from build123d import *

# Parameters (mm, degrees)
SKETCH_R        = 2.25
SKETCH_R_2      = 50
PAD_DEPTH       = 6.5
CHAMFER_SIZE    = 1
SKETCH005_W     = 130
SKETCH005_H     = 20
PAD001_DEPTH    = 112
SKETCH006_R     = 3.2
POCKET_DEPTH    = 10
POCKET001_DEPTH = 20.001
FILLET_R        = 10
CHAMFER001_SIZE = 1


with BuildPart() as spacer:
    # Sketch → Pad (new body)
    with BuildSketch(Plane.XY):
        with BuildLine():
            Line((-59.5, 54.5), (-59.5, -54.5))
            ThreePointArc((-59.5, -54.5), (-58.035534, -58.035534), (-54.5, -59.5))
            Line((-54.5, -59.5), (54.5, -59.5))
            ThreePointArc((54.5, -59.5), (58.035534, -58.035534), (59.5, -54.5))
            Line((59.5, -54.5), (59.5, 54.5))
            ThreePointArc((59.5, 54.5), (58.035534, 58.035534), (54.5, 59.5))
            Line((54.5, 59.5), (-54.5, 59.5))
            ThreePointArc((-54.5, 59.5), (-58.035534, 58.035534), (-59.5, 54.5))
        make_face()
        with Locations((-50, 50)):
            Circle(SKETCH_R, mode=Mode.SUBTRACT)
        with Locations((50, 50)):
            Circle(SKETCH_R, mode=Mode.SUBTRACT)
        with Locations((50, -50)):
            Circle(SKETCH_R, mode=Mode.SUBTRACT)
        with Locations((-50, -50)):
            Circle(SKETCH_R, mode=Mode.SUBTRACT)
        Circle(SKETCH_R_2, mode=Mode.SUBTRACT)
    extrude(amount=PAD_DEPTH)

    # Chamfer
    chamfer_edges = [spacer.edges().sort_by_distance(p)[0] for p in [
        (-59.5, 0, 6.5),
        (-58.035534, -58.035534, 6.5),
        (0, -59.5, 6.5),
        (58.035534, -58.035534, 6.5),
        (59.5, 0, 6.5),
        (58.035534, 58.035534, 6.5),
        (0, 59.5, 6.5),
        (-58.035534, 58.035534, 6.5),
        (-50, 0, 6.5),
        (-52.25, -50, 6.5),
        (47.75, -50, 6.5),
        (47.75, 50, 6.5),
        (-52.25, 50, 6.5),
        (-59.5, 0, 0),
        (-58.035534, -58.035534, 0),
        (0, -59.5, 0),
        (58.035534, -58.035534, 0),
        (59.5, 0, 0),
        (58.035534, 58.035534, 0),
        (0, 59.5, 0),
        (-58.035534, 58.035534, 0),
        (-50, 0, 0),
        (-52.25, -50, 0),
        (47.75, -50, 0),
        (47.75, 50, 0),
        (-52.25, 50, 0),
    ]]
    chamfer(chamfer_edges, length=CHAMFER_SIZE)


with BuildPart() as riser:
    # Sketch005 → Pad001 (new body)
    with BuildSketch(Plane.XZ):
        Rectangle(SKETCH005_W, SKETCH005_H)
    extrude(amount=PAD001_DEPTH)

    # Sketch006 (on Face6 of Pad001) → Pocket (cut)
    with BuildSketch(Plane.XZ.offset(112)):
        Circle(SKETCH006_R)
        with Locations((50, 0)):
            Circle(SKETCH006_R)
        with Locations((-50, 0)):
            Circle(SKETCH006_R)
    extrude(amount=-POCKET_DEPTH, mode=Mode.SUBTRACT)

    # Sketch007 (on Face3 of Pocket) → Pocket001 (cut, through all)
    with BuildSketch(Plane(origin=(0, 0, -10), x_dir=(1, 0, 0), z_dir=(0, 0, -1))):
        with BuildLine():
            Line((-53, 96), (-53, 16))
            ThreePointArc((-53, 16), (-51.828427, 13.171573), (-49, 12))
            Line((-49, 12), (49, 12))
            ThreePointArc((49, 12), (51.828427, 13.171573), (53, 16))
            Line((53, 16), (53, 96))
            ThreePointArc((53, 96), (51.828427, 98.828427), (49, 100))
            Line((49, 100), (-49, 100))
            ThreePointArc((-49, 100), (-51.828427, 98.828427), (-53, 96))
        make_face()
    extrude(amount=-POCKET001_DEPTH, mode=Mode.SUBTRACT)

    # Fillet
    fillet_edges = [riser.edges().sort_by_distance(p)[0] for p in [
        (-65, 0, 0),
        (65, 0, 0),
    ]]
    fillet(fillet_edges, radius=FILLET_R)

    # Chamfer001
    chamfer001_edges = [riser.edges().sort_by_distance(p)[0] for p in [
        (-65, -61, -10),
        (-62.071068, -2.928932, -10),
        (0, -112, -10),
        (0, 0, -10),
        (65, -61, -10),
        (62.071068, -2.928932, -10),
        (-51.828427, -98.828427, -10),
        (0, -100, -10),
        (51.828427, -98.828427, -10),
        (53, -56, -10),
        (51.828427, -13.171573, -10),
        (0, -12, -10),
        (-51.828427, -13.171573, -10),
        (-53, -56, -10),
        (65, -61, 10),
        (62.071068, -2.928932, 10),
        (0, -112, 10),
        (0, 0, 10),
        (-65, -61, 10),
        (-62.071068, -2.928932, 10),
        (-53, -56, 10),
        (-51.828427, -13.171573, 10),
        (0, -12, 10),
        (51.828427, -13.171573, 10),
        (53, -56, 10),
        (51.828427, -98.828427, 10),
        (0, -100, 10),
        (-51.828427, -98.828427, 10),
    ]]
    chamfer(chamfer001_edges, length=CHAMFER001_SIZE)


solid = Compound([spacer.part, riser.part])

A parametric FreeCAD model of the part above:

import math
import FreeCAD as App
import Part
import Sketcher
from FreeCAD import Vector


def edges_at(feature, points):
    """Names of the edges that pass closest to the given points."""
    edges = feature.Shape.Edges
    near = lambda p: min(range(len(edges)), key=lambda i: edges[i].distToShape(Part.Vertex(*p))[0])
    return sorted({f"Edge{near(p) + 1}" for p in points})


def add_polygon(sketch, points):
    """Adds a closed chain of lines whose ends are joined by coincident constraints."""
    first, n = sketch.GeometryCount, len(points)
    for a, b in zip(points, points[1:] + points[:1]):
        sketch.addGeometry(Part.LineSegment(App.Vector(*a, 0), App.Vector(*b, 0)), False)
    for i in range(n):
        sketch.addConstraint(Sketcher.Constraint("Coincident", first + i, 2, first + (i + 1) % n, 1))

doc = App.newDocument("Part")
body = doc.addObject("PartDesign::Body", "Body")

sketch1 = body.newObject("Sketcher::SketchObject", "Sketch")
sketch1.AttachmentSupport = (doc.getObject("XY_Plane"), [""])
sketch1.MapMode = "FlatFace"
sketch1.addGeometry([
    Part.LineSegment(Vector(-59.5, 54.5, 0), Vector(-59.5, -54.5, 0)),
    Part.ArcOfCircle(Part.Circle(Vector(-54.5, -54.5, 0), Vector(0, 0, 1), 5), math.radians(179.999996), math.radians(270.000004)),
    Part.LineSegment(Vector(-54.5, -59.5, 0), Vector(54.5, -59.5, 0)),
    Part.ArcOfCircle(Part.Circle(Vector(54.5, -54.5, 0), Vector(0, 0, 1), 5), math.radians(-90.000004), math.radians(0.000004)),
    Part.LineSegment(Vector(59.5, -54.5, 0), Vector(59.5, 54.5, 0)),
    Part.ArcOfCircle(Part.Circle(Vector(54.5, 54.5, 0), Vector(0, 0, 1), 5), math.radians(-0.000004), math.radians(90.000004)),
    Part.LineSegment(Vector(54.5, 59.5, 0), Vector(-54.5, 59.5, 0)),
    Part.ArcOfCircle(Part.Circle(Vector(-54.5, 54.5, 0), Vector(0, 0, 1), 5), math.radians(89.999996), math.radians(180.000004)),
    Part.Circle(Vector(-50, -50, 0), Vector(0, 0, 1), 2.25),
    Part.Circle(Vector(50, -50, 0), Vector(0, 0, 1), 2.25),
    Part.Circle(Vector(-50, 50, 0), Vector(0, 0, 1), 2.25),
    Part.Circle(Vector(0, 0, 0), Vector(0, 0, 1), 50),
    Part.Circle(Vector(50, 50, 0), Vector(0, 0, 1), 2.25),
], False)
sketch1.addConstraint([
    Sketcher.Constraint("Tangent", 0, 2, 1, 1),
    Sketcher.Constraint("Tangent", 1, 2, 2, 1),
    Sketcher.Constraint("Tangent", 2, 2, 3, 1),
    Sketcher.Constraint("Tangent", 3, 2, 4, 1),
    Sketcher.Constraint("Tangent", 4, 2, 5, 1),
    Sketcher.Constraint("Tangent", 5, 2, 6, 1),
    Sketcher.Constraint("Tangent", 6, 2, 7, 1),
    Sketcher.Constraint("Tangent", 7, 2, 0, 1),
    Sketcher.Constraint("Vertical", 0),
    Sketcher.Constraint("Horizontal", 2),
    Sketcher.Constraint("Vertical", 4),
    Sketcher.Constraint("Horizontal", 6),
    Sketcher.Constraint("Coincident", 11, 3, -1, 1),
    Sketcher.Constraint("Equal", 1, 3),
    Sketcher.Constraint("Equal", 3, 5),
    Sketcher.Constraint("Equal", 5, 7),
    Sketcher.Constraint("Equal", 8, 9),
    Sketcher.Constraint("Equal", 9, 10),
    Sketcher.Constraint("Equal", 10, 12),
    Sketcher.Constraint("Symmetric", 1, 3, 5, 3, -1, 1),
    Sketcher.Constraint("Symmetric", 9, 3, 10, 3, -1, 1),
    Sketcher.Constraint("Symmetric", 8, 3, 12, 3, -1, 1),
    Sketcher.Constraint("Symmetric", 8, 3, 9, 3, -2),
    Sketcher.Constraint("Equal", 6, 0),
    Sketcher.Constraint("Diameter", 11, 100.0),
    Sketcher.Constraint("Radius", 1, 5.0),
    Sketcher.Constraint("Diameter", 8, 4.5),
    Sketcher.Constraint("DistanceX", 2, 1, 2, 2, 109.0),
    Sketcher.Constraint("DistanceX", 8, 3, -1, 1, 50.0),
    Sketcher.Constraint("DistanceY", 8, 3, -1, 1, 50.0),
])
pad1 = body.newObject("PartDesign::Pad", "Pad")
pad1.Profile = sketch1
pad1.Length = 6.5
doc.recompute()

chamfer = body.newObject("PartDesign::Chamfer", "Chamfer")
chamfer.Base = (pad1, edges_at(pad1, [
    (-59.5, 0, 6.5),
    (-58.036, -58.036, 6.5),
    (0, -59.5, 6.5),
    (58.036, -58.036, 6.5),
    (59.5, 0, 6.5),
    (58.036, 58.036, 6.5),
    (0, 59.5, 6.5),
    (-58.036, 58.036, 6.5),
    (-50, 0, 6.5),
    (-52.25, -50, 6.5),
    (47.75, -50, 6.5),
    (47.75, 50, 6.5),
    (-52.25, 50, 6.5),
    (-59.5, 0, 0),
    (-58.036, -58.036, 0),
    (0, -59.5, 0),
    (58.036, -58.036, 0),
    (59.5, 0, 0),
    (58.036, 58.036, 0),
    (0, 59.5, 0),
    (-58.036, 58.036, 0),
    (-50, 0, 0),
    (-52.25, -50, 0),
    (47.75, -50, 0),
    (47.75, 50, 0),
    (-52.25, 50, 0),
]))
chamfer.Size = 1
body2 = doc.addObject("PartDesign::Body", "Body001")

sketch2 = body2.newObject("Sketcher::SketchObject", "Sketch001")
sketch2.AttachmentSupport = (doc.getObject("XZ_Plane001"), [""])
sketch2.MapMode = "FlatFace"
add_polygon(sketch2, [(-65, 10), (-65, -10), (65, -10), (65, 10)])
sketch2.addConstraint([
    Sketcher.Constraint("Vertical", 0),
    Sketcher.Constraint("Horizontal", 1),
    Sketcher.Constraint("Vertical", 2),
    Sketcher.Constraint("Horizontal", 3),
    Sketcher.Constraint("Symmetric", 0, 2, 2, 2, -1, 1),
    Sketcher.Constraint("DistanceX", 1, 1, 1, 2, 130.0),
    Sketcher.Constraint("DistanceY", 0, 2, 0, 1, 20.0),
])
pad2 = body2.newObject("PartDesign::Pad", "Pad001")
pad2.Profile = sketch2
pad2.Length = 112

sketch3 = body2.newObject("Sketcher::SketchObject", "Sketch002")
sketch3.AttachmentSupport = (doc.getObject("XZ_Plane001"), [""])
sketch3.MapMode = "FlatFace"
sketch3.AttachmentOffset = App.Placement(Vector(0, 0, 112), App.Rotation())
sketch3.addGeometry([
    Part.Circle(Vector(0, 0, 0), Vector(0, 0, 1), 3.2),
    Part.Circle(Vector(50, 0, 0), Vector(0, 0, 1), 3.2),
    Part.Circle(Vector(-50, 0, 0), Vector(0, 0, 1), 3.2),
], False)
sketch3.addConstraint([
    Sketcher.Constraint("Coincident", 0, 3, -1, 1),
    Sketcher.Constraint("Equal", 0, 1),
    Sketcher.Constraint("Equal", 1, 2),
    Sketcher.Constraint("Symmetric", 1, 3, 2, 3, -1, 1),
    Sketcher.Constraint("PointOnObject", 1, 3, -1),
    Sketcher.Constraint("Diameter", 0, 6.4),
    Sketcher.Constraint("DistanceX", -1, 1, 1, 3, 50.0),
])
pocket1 = body2.newObject("PartDesign::Pocket", "Pocket")
pocket1.Profile = sketch3
pocket1.Length = 10

sketch4 = body2.newObject("Sketcher::SketchObject", "Sketch003")
sketch4.AttachmentSupport = (doc.getObject("XY_Plane001"), [""])
sketch4.MapMode = "FlatFace"
sketch4.AttachmentOffset = App.Placement(Vector(0, 0, -10), App.Rotation())
sketch4.addGeometry([
    Part.LineSegment(Vector(-53, -96, 0), Vector(-53, -16, 0)),
    Part.ArcOfCircle(Part.Circle(Vector(-49, -16, 0), Vector(0, 0, 1), 4), math.radians(90.000006), math.radians(179.999994)),
    Part.LineSegment(Vector(-49, -12, 0), Vector(49, -12, 0)),
    Part.ArcOfCircle(Part.Circle(Vector(49, -16, 0), Vector(0, 0, 1), 4), math.radians(0.000006), math.radians(89.999994)),
    Part.LineSegment(Vector(53, -16, 0), Vector(53, -96, 0)),
    Part.ArcOfCircle(Part.Circle(Vector(49, -96, 0), Vector(0, 0, 1), 4), math.radians(-89.999994), math.radians(-0.000006)),
    Part.LineSegment(Vector(49, -100, 0), Vector(-49, -100, 0)),
    Part.ArcOfCircle(Part.Circle(Vector(-49, -96, 0), Vector(0, 0, 1), 4), math.radians(-179.999994), math.radians(-90.000006)),
], False)
sketch4.addConstraint([
    Sketcher.Constraint("Tangent", 0, 2, 1, 2),
    Sketcher.Constraint("Tangent", 1, 1, 2, 1),
    Sketcher.Constraint("Tangent", 2, 2, 3, 2),
    Sketcher.Constraint("Tangent", 3, 1, 4, 1),
    Sketcher.Constraint("Tangent", 4, 2, 5, 2),
    Sketcher.Constraint("Tangent", 5, 1, 6, 1),
    Sketcher.Constraint("Tangent", 6, 2, 7, 2),
    Sketcher.Constraint("Tangent", 7, 1, 0, 1),
    Sketcher.Constraint("Vertical", 0),
    Sketcher.Constraint("Horizontal", 2),
    Sketcher.Constraint("Vertical", 4),
    Sketcher.Constraint("Horizontal", 6),
    Sketcher.Constraint("Equal", 1, 3),
    Sketcher.Constraint("Equal", 3, 5),
    Sketcher.Constraint("Equal", 5, 7),
    Sketcher.Constraint("Radius", 1, 4.0),
    Sketcher.Constraint("DistanceX", 2, 1, 2, 2, 98.0),
    Sketcher.Constraint("DistanceY", 0, 1, 0, 2, 80.0),
    Sketcher.Constraint("DistanceX", 1, 3, -1, 1, 49.0),
    Sketcher.Constraint("DistanceY", 1, 3, -1, 1, 16.0),
])
pocket2 = body2.newObject("PartDesign::Pocket", "Pocket001")
pocket2.Profile = sketch4
pocket2.Type = "ThroughAll"
pocket2.Reversed = True
doc.recompute()

fillet = body2.newObject("PartDesign::Fillet", "Fillet")
fillet.Base = (pocket2, edges_at(pocket2, [(-65, 0, 0), (65, 0, 0)]))
fillet.Radius = 10
doc.recompute()

chamfer2 = body2.newObject("PartDesign::Chamfer", "Chamfer001")
chamfer2.Base = (fillet, edges_at(fillet, [
    (-65, -61, -10),
    (-62.071, -2.929, -10),
    (0, -112, -10),
    (0, 0, -10),
    (65, -61, -10),
    (62.071, -2.929, -10),
    (-51.828, -98.828, -10),
    (0, -100, -10),
    (51.828, -98.828, -10),
    (53, -56, -10),
    (51.828, -13.172, -10),
    (0, -12, -10),
    (-51.828, -13.172, -10),
    (-53, -56, -10),
    (65, -61, 10),
    (62.071, -2.929, 10),
    (0, -112, 10),
    (0, 0, 10),
    (-65, -61, 10),
    (-62.071, -2.929, 10),
    (-53, -56, 10),
    (-51.828, -13.172, 10),
    (0, -12, 10),
    (51.828, -13.172, 10),
    (53, -56, 10),
    (51.828, -98.828, 10),
    (0, -100, 10),
    (-51.828, -98.828, 10),
]))
chamfer2.Size = 1

doc.recompute()
